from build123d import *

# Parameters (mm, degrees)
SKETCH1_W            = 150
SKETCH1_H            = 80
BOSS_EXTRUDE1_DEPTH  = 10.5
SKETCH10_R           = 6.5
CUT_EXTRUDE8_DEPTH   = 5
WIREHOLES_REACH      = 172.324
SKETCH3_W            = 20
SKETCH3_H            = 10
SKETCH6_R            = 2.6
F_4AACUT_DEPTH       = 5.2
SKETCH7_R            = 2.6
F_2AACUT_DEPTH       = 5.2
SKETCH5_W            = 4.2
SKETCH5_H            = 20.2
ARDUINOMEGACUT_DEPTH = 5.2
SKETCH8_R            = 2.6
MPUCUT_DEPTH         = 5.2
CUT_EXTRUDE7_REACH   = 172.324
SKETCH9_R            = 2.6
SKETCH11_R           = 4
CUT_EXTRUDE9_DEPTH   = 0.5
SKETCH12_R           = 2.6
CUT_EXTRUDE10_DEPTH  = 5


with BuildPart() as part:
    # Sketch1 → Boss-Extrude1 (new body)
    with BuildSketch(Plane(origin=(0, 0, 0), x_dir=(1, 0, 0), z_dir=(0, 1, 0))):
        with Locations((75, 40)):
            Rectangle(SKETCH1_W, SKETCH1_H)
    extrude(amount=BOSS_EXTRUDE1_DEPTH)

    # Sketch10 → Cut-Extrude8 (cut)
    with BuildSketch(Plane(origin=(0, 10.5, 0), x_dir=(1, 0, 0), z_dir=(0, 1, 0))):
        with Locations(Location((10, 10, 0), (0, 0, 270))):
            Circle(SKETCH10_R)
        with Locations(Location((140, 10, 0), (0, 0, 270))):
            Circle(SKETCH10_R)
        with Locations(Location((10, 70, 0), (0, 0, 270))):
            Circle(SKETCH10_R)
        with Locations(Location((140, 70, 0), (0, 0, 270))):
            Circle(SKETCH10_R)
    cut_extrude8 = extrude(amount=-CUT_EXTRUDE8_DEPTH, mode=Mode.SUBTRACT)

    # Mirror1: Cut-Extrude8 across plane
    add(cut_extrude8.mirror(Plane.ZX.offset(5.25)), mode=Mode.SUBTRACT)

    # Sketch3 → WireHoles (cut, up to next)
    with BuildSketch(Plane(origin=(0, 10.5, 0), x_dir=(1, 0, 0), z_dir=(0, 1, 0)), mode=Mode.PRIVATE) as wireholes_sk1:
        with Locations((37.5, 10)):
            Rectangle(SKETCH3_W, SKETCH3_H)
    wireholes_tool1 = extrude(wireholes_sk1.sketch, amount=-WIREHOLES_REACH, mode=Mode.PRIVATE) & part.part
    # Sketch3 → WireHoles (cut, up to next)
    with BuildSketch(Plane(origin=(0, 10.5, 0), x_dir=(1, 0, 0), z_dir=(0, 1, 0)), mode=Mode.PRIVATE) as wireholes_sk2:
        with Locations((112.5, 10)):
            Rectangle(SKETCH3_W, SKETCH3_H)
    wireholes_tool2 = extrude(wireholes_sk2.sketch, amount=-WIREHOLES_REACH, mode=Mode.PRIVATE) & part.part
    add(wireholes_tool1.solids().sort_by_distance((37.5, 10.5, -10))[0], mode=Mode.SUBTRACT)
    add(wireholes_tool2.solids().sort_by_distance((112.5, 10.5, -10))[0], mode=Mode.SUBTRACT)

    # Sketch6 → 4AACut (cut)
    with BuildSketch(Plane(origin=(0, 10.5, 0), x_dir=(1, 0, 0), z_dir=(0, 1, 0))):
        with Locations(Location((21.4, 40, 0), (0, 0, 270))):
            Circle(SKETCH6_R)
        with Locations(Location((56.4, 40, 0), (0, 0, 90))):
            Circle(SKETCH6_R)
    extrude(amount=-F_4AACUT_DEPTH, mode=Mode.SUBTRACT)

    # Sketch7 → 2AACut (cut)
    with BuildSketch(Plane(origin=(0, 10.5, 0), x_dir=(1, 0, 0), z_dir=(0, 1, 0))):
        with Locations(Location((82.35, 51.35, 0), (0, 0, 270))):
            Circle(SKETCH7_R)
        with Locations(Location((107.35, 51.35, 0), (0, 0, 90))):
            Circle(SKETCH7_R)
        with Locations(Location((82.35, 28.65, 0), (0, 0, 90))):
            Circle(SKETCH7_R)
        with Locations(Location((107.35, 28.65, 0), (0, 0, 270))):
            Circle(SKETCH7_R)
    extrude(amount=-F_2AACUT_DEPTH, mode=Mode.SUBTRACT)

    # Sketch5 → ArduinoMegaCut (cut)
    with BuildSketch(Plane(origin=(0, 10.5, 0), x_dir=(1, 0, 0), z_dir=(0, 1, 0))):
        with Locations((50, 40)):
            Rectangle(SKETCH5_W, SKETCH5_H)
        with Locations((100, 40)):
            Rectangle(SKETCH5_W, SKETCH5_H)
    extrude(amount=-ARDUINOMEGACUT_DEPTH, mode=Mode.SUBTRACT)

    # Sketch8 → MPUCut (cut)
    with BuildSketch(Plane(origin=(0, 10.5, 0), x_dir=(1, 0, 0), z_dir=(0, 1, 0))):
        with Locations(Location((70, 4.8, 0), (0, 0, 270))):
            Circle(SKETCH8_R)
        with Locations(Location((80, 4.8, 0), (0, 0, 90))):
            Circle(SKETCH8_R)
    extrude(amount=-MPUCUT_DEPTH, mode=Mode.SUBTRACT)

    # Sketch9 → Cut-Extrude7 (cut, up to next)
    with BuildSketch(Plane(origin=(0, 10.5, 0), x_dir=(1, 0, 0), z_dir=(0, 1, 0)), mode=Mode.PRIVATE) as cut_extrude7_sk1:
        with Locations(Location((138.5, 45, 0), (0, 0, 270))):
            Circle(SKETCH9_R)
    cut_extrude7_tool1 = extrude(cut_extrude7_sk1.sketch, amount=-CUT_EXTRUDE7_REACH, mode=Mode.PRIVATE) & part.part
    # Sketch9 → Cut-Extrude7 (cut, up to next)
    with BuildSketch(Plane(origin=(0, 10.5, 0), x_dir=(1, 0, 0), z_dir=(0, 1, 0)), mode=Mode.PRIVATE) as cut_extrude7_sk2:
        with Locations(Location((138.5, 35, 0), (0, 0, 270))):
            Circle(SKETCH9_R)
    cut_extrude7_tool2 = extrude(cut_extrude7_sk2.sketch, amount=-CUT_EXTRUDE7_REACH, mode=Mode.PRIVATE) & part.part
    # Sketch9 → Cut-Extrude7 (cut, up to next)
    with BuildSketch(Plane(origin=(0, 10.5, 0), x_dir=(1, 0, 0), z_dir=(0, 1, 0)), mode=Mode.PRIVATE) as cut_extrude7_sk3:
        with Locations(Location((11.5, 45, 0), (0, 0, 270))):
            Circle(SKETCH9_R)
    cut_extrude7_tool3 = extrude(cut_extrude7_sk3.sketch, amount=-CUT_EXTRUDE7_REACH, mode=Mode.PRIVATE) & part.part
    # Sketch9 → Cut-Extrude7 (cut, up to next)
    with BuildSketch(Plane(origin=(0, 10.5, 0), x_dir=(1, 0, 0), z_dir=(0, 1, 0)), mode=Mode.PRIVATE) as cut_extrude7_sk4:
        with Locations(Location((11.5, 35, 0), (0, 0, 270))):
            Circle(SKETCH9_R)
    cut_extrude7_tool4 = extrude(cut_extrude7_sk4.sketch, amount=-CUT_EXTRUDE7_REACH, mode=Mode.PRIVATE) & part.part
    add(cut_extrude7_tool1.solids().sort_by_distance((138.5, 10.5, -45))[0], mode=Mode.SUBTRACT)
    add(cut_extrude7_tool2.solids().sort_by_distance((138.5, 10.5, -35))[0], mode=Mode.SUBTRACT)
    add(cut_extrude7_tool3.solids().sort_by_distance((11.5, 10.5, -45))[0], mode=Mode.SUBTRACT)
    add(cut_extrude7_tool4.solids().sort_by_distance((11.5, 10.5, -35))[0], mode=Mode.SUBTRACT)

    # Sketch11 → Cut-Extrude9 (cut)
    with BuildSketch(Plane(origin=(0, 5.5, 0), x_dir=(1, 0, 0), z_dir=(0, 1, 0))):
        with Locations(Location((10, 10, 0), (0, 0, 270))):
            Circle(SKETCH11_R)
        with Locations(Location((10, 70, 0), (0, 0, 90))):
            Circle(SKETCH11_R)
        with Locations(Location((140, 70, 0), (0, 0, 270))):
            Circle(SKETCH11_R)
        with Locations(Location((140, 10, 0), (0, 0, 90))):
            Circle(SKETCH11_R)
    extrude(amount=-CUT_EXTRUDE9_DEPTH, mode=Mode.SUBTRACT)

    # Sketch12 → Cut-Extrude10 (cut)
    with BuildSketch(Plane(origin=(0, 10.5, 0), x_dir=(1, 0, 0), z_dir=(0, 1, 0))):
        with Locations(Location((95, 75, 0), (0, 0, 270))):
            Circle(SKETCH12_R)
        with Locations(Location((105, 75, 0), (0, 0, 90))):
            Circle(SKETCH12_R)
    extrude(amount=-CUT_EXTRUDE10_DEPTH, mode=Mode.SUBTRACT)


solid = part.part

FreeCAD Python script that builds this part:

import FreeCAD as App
import Part
import Sketcher

doc = App.newDocument("Part")
body = doc.addObject("PartDesign::Body", "Body")

# Sketch on XZ plane
sketch1 = body.newObject("Sketcher::SketchObject", "Sketch")
sketch1.AttachmentSupport = (doc.getObject("XZ_Plane"), [""])
sketch1.MapMode = "FlatFace"
sketch1.addGeometry(Part.LineSegment(App.Vector(0, -80, 0), App.Vector(0, 0, 0)), False)
sketch1.addGeometry(Part.LineSegment(App.Vector(0, 0, 0), App.Vector(150, 0, 0)), False)
sketch1.addGeometry(Part.LineSegment(App.Vector(150, 0, 0), App.Vector(150, -80, 0)), False)
sketch1.addGeometry(Part.LineSegment(App.Vector(150, -80, 0), App.Vector(0, -80, 0)), False)
sketch1.addConstraint(Sketcher.Constraint("Coincident", 0, 2, 1, 1))
sketch1.addConstraint(Sketcher.Constraint("Coincident", 1, 2, 2, 1))
sketch1.addConstraint(Sketcher.Constraint("Coincident", 2, 2, 3, 1))
sketch1.addConstraint(Sketcher.Constraint("Coincident", 3, 2, 0, 1))
sketch1.addConstraint(Sketcher.Constraint("Vertical", 0))
sketch1.addConstraint(Sketcher.Constraint("Horizontal", 1))
sketch1.addConstraint(Sketcher.Constraint("Vertical", 2))
sketch1.addConstraint(Sketcher.Constraint("Horizontal", 3))
sketch1.addConstraint(Sketcher.Constraint("Coincident", 0, 2, -1, 1))
sketch1.addConstraint(Sketcher.Constraint("DistanceX", 1, 1, 1, 2, 150.0))
sketch1.addConstraint(Sketcher.Constraint("DistanceY", 0, 1, 0, 2, 80.0))
pad1 = body.newObject("PartDesign::Pad", "Pad")
pad1.Profile = sketch1
pad1.Length = 10.5
pad1.Reversed = True

# Sketch on XZ plane
sketch2 = body.newObject("Sketcher::SketchObject", "Sketch001")
sketch2.AttachmentSupport = (doc.getObject("XZ_Plane"), [""])
sketch2.MapMode = "FlatFace"
sketch2.AttachmentOffset = App.Placement(App.Vector(0, 0, -10.5), App.Rotation())
sketch2.addGeometry(Part.Circle(App.Vector(10, -10, 0), App.Vector(0, 0, 1), 6.5), False)
sketch2.addGeometry(Part.Circle(App.Vector(140, -10, 0), App.Vector(0, 0, 1), 6.5), False)
sketch2.addGeometry(Part.Circle(App.Vector(10, -70, 0), App.Vector(0, 0, 1), 6.5), False)
sketch2.addGeometry(Part.Circle(App.Vector(140, -70, 0), App.Vector(0, 0, 1), 6.5), False)
sketch2.addConstraint(Sketcher.Constraint("Equal", 0, 1))
sketch2.addConstraint(Sketcher.Constraint("Equal", 1, 2))
sketch2.addConstraint(Sketcher.Constraint("Equal", 2, 3))
sketch2.addConstraint(Sketcher.Constraint("Horizontal", 0, 3, 1, 3))
sketch2.addConstraint(Sketcher.Constraint("Horizontal", 2, 3, 3, 3))
sketch2.addConstraint(Sketcher.Constraint("Vertical", 0, 3, 2, 3))
sketch2.addConstraint(Sketcher.Constraint("Vertical", 1, 3, 3, 3))
sketch2.addConstraint(Sketcher.Constraint("Diameter", 0, 13.0))
sketch2.addConstraint(Sketcher.Constraint("DistanceX", -1, 1, 0, 3, 10.0))
sketch2.addConstraint(Sketcher.Constraint("DistanceY", 0, 3, -1, 1, 10.0))
sketch2.addConstraint(Sketcher.Constraint("DistanceX", -1, 1, 1, 3, 140.0))
sketch2.addConstraint(Sketcher.Constraint("DistanceY", 2, 3, -1, 1, 70.0))
pocket1 = body.newObject("PartDesign::Pocket", "Pocket")
pocket1.Profile = sketch2
pocket1.Length = 5
pocket1.Reversed = True
doc.recompute()

datumplane = body.newObject("PartDesign::Plane", "DatumPlane")
datumplane.AttachmentSupport = (doc.getObject("XZ_Plane"), [""])
datumplane.MapMode = "FlatFace"
datumplane.AttachmentOffset = App.Placement(App.Vector(0, 0, -5.25), App.Rotation())
mirrored = body.newObject("PartDesign::Mirrored", "Mirrored")
mirrored.Originals = [pocket1]
mirrored.MirrorPlane = (datumplane, [""])
body.Tip = mirrored

# Sketch on XZ plane
sketch3 = body.newObject("Sketcher::SketchObject", "Sketch002")
sketch3.AttachmentSupport = (doc.getObject("XZ_Plane"), [""])
sketch3.MapMode = "FlatFace"
sketch3.AttachmentOffset = App.Placement(App.Vector(0, 0, -10.5), App.Rotation())
sketch3.addGeometry(Part.LineSegment(App.Vector(27.5, -15, 0), App.Vector(27.5, -5, 0)), False)
sketch3.addGeometry(Part.LineSegment(App.Vector(27.5, -5, 0), App.Vector(47.5, -5, 0)), False)
sketch3.addGeometry(Part.LineSegment(App.Vector(47.5, -5, 0), App.Vector(47.5, -15, 0)), False)
sketch3.addGeometry(Part.LineSegment(App.Vector(47.5, -15, 0), App.Vector(27.5, -15, 0)), False)
sketch3.addConstraint(Sketcher.Constraint("Coincident", 0, 2, 1, 1))
sketch3.addConstraint(Sketcher.Constraint("Coincident", 1, 2, 2, 1))
sketch3.addConstraint(Sketcher.Constraint("Coincident", 2, 2, 3, 1))
sketch3.addConstraint(Sketcher.Constraint("Coincident", 3, 2, 0, 1))
sketch3.addConstraint(Sketcher.Constraint("Vertical", 0))
sketch3.addConstraint(Sketcher.Constraint("Horizontal", 1))
sketch3.addConstraint(Sketcher.Constraint("Vertical", 2))
sketch3.addConstraint(Sketcher.Constraint("Horizontal", 3))
sketch3.addConstraint(Sketcher.Constraint("DistanceX", 1, 1, 1, 2, 20.0))
sketch3.addConstraint(Sketcher.Constraint("DistanceY", 0, 1, 0, 2, 10.0))
sketch3.addConstraint(Sketcher.Constraint("DistanceY", 0, 2, -1, 1, 5.0))
sketch3.addConstraint(Sketcher.Constraint("DistanceX", -1, 1, 0, 2, 27.5))
pocket2 = body.newObject("PartDesign::Pocket", "Pocket001")
pocket2.Profile = sketch3
pocket2.Type = "UpToFirst"
pocket2.Reversed = True

# Sketch on XZ plane
sketch4 = body.newObject("Sketcher::SketchObject", "Sketch003")
sketch4.AttachmentSupport = (doc.getObject("XZ_Plane"), [""])
sketch4.MapMode = "FlatFace"
sketch4.AttachmentOffset = App.Placement(App.Vector(0, 0, -10.5), App.Rotation())
sketch4.addGeometry(Part.LineSegment(App.Vector(102.5, -15, 0), App.Vector(102.5, -5, 0)), False)
sketch4.addGeometry(Part.LineSegment(App.Vector(102.5, -5, 0), App.Vector(122.5, -5, 0)), False)
sketch4.addGeometry(Part.LineSegment(App.Vector(122.5, -5, 0), App.Vector(122.5, -15, 0)), False)
sketch4.addGeometry(Part.LineSegment(App.Vector(122.5, -15, 0), App.Vector(102.5, -15, 0)), False)
sketch4.addConstraint(Sketcher.Constraint("Coincident", 0, 2, 1, 1))
sketch4.addConstraint(Sketcher.Constraint("Coincident", 1, 2, 2, 1))
sketch4.addConstraint(Sketcher.Constraint("Coincident", 2, 2, 3, 1))
sketch4.addConstraint(Sketcher.Constraint("Coincident", 3, 2, 0, 1))
sketch4.addConstraint(Sketcher.Constraint("Vertical", 0))
sketch4.addConstraint(Sketcher.Constraint("Horizontal", 1))
sketch4.addConstraint(Sketcher.Constraint("Vertical", 2))
sketch4.addConstraint(Sketcher.Constraint("Horizontal", 3))
sketch4.addConstraint(Sketcher.Constraint("DistanceX", 1, 1, 1, 2, 20.0))
sketch4.addConstraint(Sketcher.Constraint("DistanceY", 0, 1, 0, 2, 10.0))
sketch4.addConstraint(Sketcher.Constraint("DistanceY", 0, 2, -1, 1, 5.0))
sketch4.addConstraint(Sketcher.Constraint("DistanceX", -1, 1, 0, 2, 102.5))
pocket3 = body.newObject("PartDesign::Pocket", "Pocket002")
pocket3.Profile = sketch4
pocket3.Type = "UpToFirst"
pocket3.Reversed = True

# Sketch on XZ plane
sketch5 = body.newObject("Sketcher::SketchObject", "Sketch004")
sketch5.AttachmentSupport = (doc.getObject("XZ_Plane"), [""])
sketch5.MapMode = "FlatFace"
sketch5.AttachmentOffset = App.Placement(App.Vector(0, 0, -10.5), App.Rotation())
sketch5.addGeometry(Part.Circle(App.Vector(21.4, -40, 0), App.Vector(0, 0, 1), 2.6), False)
sketch5.addGeometry(Part.Circle(App.Vector(56.4, -40, 0), App.Vector(0, 0, 1), 2.6), False)
sketch5.addConstraint(Sketcher.Constraint("Equal", 0, 1))
sketch5.addConstraint(Sketcher.Constraint("Horizontal", 0, 3, 1, 3))
sketch5.addConstraint(Sketcher.Constraint("Diameter", 0, 5.2))
sketch5.addConstraint(Sketcher.Constraint("DistanceY", 0, 3, -1, 1, 40.0))
sketch5.addConstraint(Sketcher.Constraint("DistanceX", 0, 3, 1, 3, 35.0))
sketch5.addConstraint(Sketcher.Constraint("DistanceX", -1, 1, 0, 3, 21.4))
pocket4 = body.newObject("PartDesign::Pocket", "Pocket003")
pocket4.Profile = sketch5
pocket4.Length = 5.2
pocket4.Reversed = True

# Sketch on XZ plane
sketch6 = body.newObject("Sketcher::SketchObject", "Sketch005")
sketch6.AttachmentSupport = (doc.getObject("XZ_Plane"), [""])
sketch6.MapMode = "FlatFace"
sketch6.AttachmentOffset = App.Placement(App.Vector(0, 0, -10.5), App.Rotation())
sketch6.addGeometry(Part.Circle(App.Vector(82.35, -51.35, 0), App.Vector(0, 0, 1), 2.6), False)
sketch6.addGeometry(Part.Circle(App.Vector(107.35, -51.35, 0), App.Vector(0, 0, 1), 2.6), False)
sketch6.addGeometry(Part.Circle(App.Vector(82.35, -28.65, 0), App.Vector(0, 0, 1), 2.6), False)
sketch6.addGeometry(Part.Circle(App.Vector(107.35, -28.65, 0), App.Vector(0, 0, 1), 2.6), False)
sketch6.addConstraint(Sketcher.Constraint("Equal", 0, 1))
sketch6.addConstraint(Sketcher.Constraint("Equal", 1, 2))
sketch6.addConstraint(Sketcher.Constraint("Equal", 2, 3))
sketch6.addConstraint(Sketcher.Constraint("Horizontal", 0, 3, 1, 3))
sketch6.addConstraint(Sketcher.Constraint("Horizontal", 2, 3, 3, 3))
sketch6.addConstraint(Sketcher.Constraint("Vertical", 0, 3, 2, 3))
sketch6.addConstraint(Sketcher.Constraint("Vertical", 1, 3, 3, 3))
sketch6.addConstraint(Sketcher.Constraint("Diameter", 0, 5.2))
sketch6.addConstraint(Sketcher.Constraint("DistanceX", 0, 3, 1, 3, 25.0))
sketch6.addConstraint(Sketcher.Constraint("DistanceY", 0, 3, 2, 3, 22.7))
sketch6.addConstraint(Sketcher.Constraint("DistanceX", -1, 1, 0, 3, 82.35))
sketch6.addConstraint(Sketcher.Constraint("DistanceY", 0, 3, -1, 1, 51.35))
pocket5 = body.newObject("PartDesign::Pocket", "Pocket004")
pocket5.Profile = sketch6
pocket5.Length = 5.2
pocket5.Reversed = True

# Sketch on XZ plane
sketch7 = body.newObject("Sketcher::SketchObject", "Sketch006")
sketch7.AttachmentSupport = (doc.getObject("XZ_Plane"), [""])
sketch7.MapMode = "FlatFace"
sketch7.AttachmentOffset = App.Placement(App.Vector(0, 0, -10.5), App.Rotation())
sketch7.addGeometry(Part.LineSegment(App.Vector(47.9, -50.1, 0), App.Vector(47.9, -29.9, 0)), False)
sketch7.addGeometry(Part.LineSegment(App.Vector(47.9, -29.9, 0), App.Vector(52.1, -29.9, 0)), False)
sketch7.addGeometry(Part.LineSegment(App.Vector(52.1, -29.9, 0), App.Vector(52.1, -50.1, 0)), False)
sketch7.addGeometry(Part.LineSegment(App.Vector(52.1, -50.1, 0), App.Vector(47.9, -50.1, 0)), False)
sketch7.addGeometry(Part.LineSegment(App.Vector(97.9, -50.1, 0), App.Vector(97.9, -29.9, 0)), False)
sketch7.addGeometry(Part.LineSegment(App.Vector(97.9, -29.9, 0), App.Vector(102.1, -29.9, 0)), False)
sketch7.addGeometry(Part.LineSegment(App.Vector(102.1, -29.9, 0), App.Vector(102.1, -50.1, 0)), False)
sketch7.addGeometry(Part.LineSegment(App.Vector(102.1, -50.1, 0), App.Vector(97.9, -50.1, 0)), False)
sketch7.addConstraint(Sketcher.Constraint("Coincident", 0, 2, 1, 1))
sketch7.addConstraint(Sketcher.Constraint("Coincident", 1, 2, 2, 1))
sketch7.addConstraint(Sketcher.Constraint("Coincident", 2, 2, 3, 1))
sketch7.addConstraint(Sketcher.Constraint("Coincident", 3, 2, 0, 1))
sketch7.addConstraint(Sketcher.Constraint("Coincident", 4, 2, 5, 1))
sketch7.addConstraint(Sketcher.Constraint("Coincident", 5, 2, 6, 1))
sketch7.addConstraint(Sketcher.Constraint("Coincident", 6, 2, 7, 1))
sketch7.addConstraint(Sketcher.Constraint("Coincident", 7, 2, 4, 1))
sketch7.addConstraint(Sketcher.Constraint("Vertical", 0))
sketch7.addConstraint(Sketcher.Constraint("Horizontal", 1))
sketch7.addConstraint(Sketcher.Constraint("Vertical", 2))
sketch7.addConstraint(Sketcher.Constraint("Horizontal", 3))
sketch7.addConstraint(Sketcher.Constraint("Vertical", 4))
sketch7.addConstraint(Sketcher.Constraint("Horizontal", 5))
sketch7.addConstraint(Sketcher.Constraint("Vertical", 6))
sketch7.addConstraint(Sketcher.Constraint("Horizontal", 7))
sketch7.addConstraint(Sketcher.Constraint("Horizontal", 1, 2, 4, 2))
sketch7.addConstraint(Sketcher.Constraint("Horizontal", 3, 2, 6, 2))
sketch7.addConstraint(Sketcher.Constraint("Equal", 3, 5))
sketch7.addConstraint(Sketcher.Constraint("DistanceX", 1, 1, 1, 2, 4.2))
sketch7.addConstraint(Sketcher.Constraint("DistanceY", 0, 1, 0, 2, 20.2))
sketch7.addConstraint(Sketcher.Constraint("DistanceX", 0, 2, 4, 2, 50.0))
sketch7.addConstraint(Sketcher.Constraint("DistanceX", -1, 1, 0, 2, 47.9))
sketch7.addConstraint(Sketcher.Constraint("DistanceY", 0, 2, -1, 1, 29.9))
pocket6 = body.newObject("PartDesign::Pocket", "Pocket005")
pocket6.Profile = sketch7
pocket6.Length = 5.2
pocket6.Reversed = True

# Sketch on XZ plane
sketch8 = body.newObject("Sketcher::SketchObject", "Sketch007")
sketch8.AttachmentSupport = (doc.getObject("XZ_Plane"), [""])
sketch8.MapMode = "FlatFace"
sketch8.AttachmentOffset = App.Placement(App.Vector(0, 0, -10.5), App.Rotation())
sketch8.addGeometry(Part.Circle(App.Vector(70, -4.8, 0), App.Vector(0, 0, 1), 2.6), False)
sketch8.addGeometry(Part.Circle(App.Vector(80, -4.8, 0), App.Vector(0, 0, 1), 2.6), False)
sketch8.addConstraint(Sketcher.Constraint("Equal", 0, 1))
sketch8.addConstraint(Sketcher.Constraint("Horizontal", 0, 3, 1, 3))
sketch8.addConstraint(Sketcher.Constraint("Diameter", 0, 5.2))
sketch8.addConstraint(Sketcher.Constraint("DistanceX", -1, 1, 0, 3, 70.0))
sketch8.addConstraint(Sketcher.Constraint("DistanceX", -1, 1, 1, 3, 80.0))
sketch8.addConstraint(Sketcher.Constraint("DistanceY", 0, 3, -1, 1, 4.8))
pocket7 = body.newObject("PartDesign::Pocket", "Pocket006")
pocket7.Profile = sketch8
pocket7.Length = 5.2
pocket7.Reversed = True

# Sketch on XZ plane
sketch9 = body.newObject("Sketcher::SketchObject", "Sketch008")
sketch9.AttachmentSupport = (doc.getObject("XZ_Plane"), [""])
sketch9.MapMode = "FlatFace"
sketch9.AttachmentOffset = App.Placement(App.Vector(0, 0, -10.5), App.Rotation())
sketch9.addGeometry(Part.Circle(App.Vector(138.5, -45, 0), App.Vector(0, 0, 1), 2.6), False)
sketch9.addConstraint(Sketcher.Constraint("Diameter", 0, 5.2))
sketch9.addConstraint(Sketcher.Constraint("DistanceY", 0, 3, -1, 1, 45.0))
sketch9.addConstraint(Sketcher.Constraint("DistanceX", -1, 1, 0, 3, 138.5))
pocket8 = body.newObject("PartDesign::Pocket", "Pocket007")
pocket8.Profile = sketch9
pocket8.Type = "UpToFirst"
pocket8.Reversed = True

# Sketch on XZ plane
sketch10 = body.newObject("Sketcher::SketchObject", "Sketch009")
sketch10.AttachmentSupport = (doc.getObject("XZ_Plane"), [""])
sketch10.MapMode = "FlatFace"
sketch10.AttachmentOffset = App.Placement(App.Vector(0, 0, -10.5), App.Rotation())
sketch10.addGeometry(Part.Circle(App.Vector(138.5, -35, 0), App.Vector(0, 0, 1), 2.6), False)
sketch10.addConstraint(Sketcher.Constraint("Diameter", 0, 5.2))
sketch10.addConstraint(Sketcher.Constraint("DistanceY", 0, 3, -1, 1, 35.0))
sketch10.addConstraint(Sketcher.Constraint("DistanceX", -1, 1, 0, 3, 138.5))
pocket9 = body.newObject("PartDesign::Pocket", "Pocket008")
pocket9.Profile = sketch10
pocket9.Type = "UpToFirst"
pocket9.Reversed = True

# Sketch on XZ plane
sketch11 = body.newObject("Sketcher::SketchObject", "Sketch010")
sketch11.AttachmentSupport = (doc.getObject("XZ_Plane"), [""])
sketch11.MapMode = "FlatFace"
sketch11.AttachmentOffset = App.Placement(App.Vector(0, 0, -10.5), App.Rotation())
sketch11.addGeometry(Part.Circle(App.Vector(11.5, -45, 0), App.Vector(0, 0, 1), 2.6), False)
sketch11.addConstraint(Sketcher.Constraint("Diameter", 0, 5.2))
sketch11.addConstraint(Sketcher.Constraint("DistanceY", 0, 3, -1, 1, 45.0))
sketch11.addConstraint(Sketcher.Constraint("DistanceX", -1, 1, 0, 3, 11.5))
pocket10 = body.newObject("PartDesign::Pocket", "Pocket009")
pocket10.Profile = sketch11
pocket10.Type = "UpToFirst"
pocket10.Reversed = True

# Sketch on XZ plane
sketch12 = body.newObject("Sketcher::SketchObject", "Sketch011")
sketch12.AttachmentSupport = (doc.getObject("XZ_Plane"), [""])
sketch12.MapMode = "FlatFace"
sketch12.AttachmentOffset = App.Placement(App.Vector(0, 0, -10.5), App.Rotation())
sketch12.addGeometry(Part.Circle(App.Vector(11.5, -35, 0), App.Vector(0, 0, 1), 2.6), False)
sketch12.addConstraint(Sketcher.Constraint("Diameter", 0, 5.2))
sketch12.addConstraint(Sketcher.Constraint("DistanceY", 0, 3, -1, 1, 35.0))
sketch12.addConstraint(Sketcher.Constraint("DistanceX", -1, 1, 0, 3, 11.5))
pocket11 = body.newObject("PartDesign::Pocket", "Pocket010")
pocket11.Profile = sketch12
pocket11.Type = "UpToFirst"
pocket11.Reversed = True

# Sketch on XZ plane
sketch13 = body.newObject("Sketcher::SketchObject", "Sketch012")
sketch13.AttachmentSupport = (doc.getObject("XZ_Plane"), [""])
sketch13.MapMode = "FlatFace"
sketch13.AttachmentOffset = App.Placement(App.Vector(0, 0, -5.5), App.Rotation())
sketch13.addGeometry(Part.Circle(App.Vector(10, -10, 0), App.Vector(0, 0, 1), 4), False)
sketch13.addGeometry(Part.Circle(App.Vector(10, -70, 0), App.Vector(0, 0, 1), 4), False)
sketch13.addGeometry(Part.Circle(App.Vector(140, -70, 0), App.Vector(0, 0, 1), 4), False)
sketch13.addGeometry(Part.Circle(App.Vector(140, -10, 0), App.Vector(0, 0, 1), 4), False)
sketch13.addConstraint(Sketcher.Constraint("Equal", 0, 1))
sketch13.addConstraint(Sketcher.Constraint("Equal", 1, 2))
sketch13.addConstraint(Sketcher.Constraint("Equal", 2, 3))
sketch13.addConstraint(Sketcher.Constraint("Horizontal", 1, 3, 2, 3))
sketch13.addConstraint(Sketcher.Constraint("Horizontal", 0, 3, 3, 3))
sketch13.addConstraint(Sketcher.Constraint("Vertical", 0, 3, 1, 3))
sketch13.addConstraint(Sketcher.Constraint("Vertical", 2, 3, 3, 3))
sketch13.addConstraint(Sketcher.Constraint("Diameter", 0, 8.0))
sketch13.addConstraint(Sketcher.Constraint("DistanceX", -1, 1, 0, 3, 10.0))
sketch13.addConstraint(Sketcher.Constraint("DistanceY", 0, 3, -1, 1, 10.0))
sketch13.addConstraint(Sketcher.Constraint("DistanceY", 1, 3, -1, 1, 70.0))
sketch13.addConstraint(Sketcher.Constraint("DistanceX", -1, 1, 2, 3, 140.0))
pocket12 = body.newObject("PartDesign::Pocket", "Pocket011")
pocket12.Profile = sketch13
pocket12.Length = 0.5
pocket12.Reversed = True

# Sketch on XZ plane
sketch14 = body.newObject("Sketcher::SketchObject", "Sketch013")
sketch14.AttachmentSupport = (doc.getObject("XZ_Plane"), [""])
sketch14.MapMode = "FlatFace"
sketch14.AttachmentOffset = App.Placement(App.Vector(0, 0, -10.5), App.Rotation())
sketch14.addGeometry(Part.Circle(App.Vector(95, -75, 0), App.Vector(0, 0, 1), 2.6), False)
sketch14.addGeometry(Part.Circle(App.Vector(105, -75, 0), App.Vector(0, 0, 1), 2.6), False)
sketch14.addConstraint(Sketcher.Constraint("Equal", 0, 1))
sketch14.addConstraint(Sketcher.Constraint("Horizontal", 0, 3, 1, 3))
sketch14.addConstraint(Sketcher.Constraint("Diameter", 0, 5.2))
sketch14.addConstraint(Sketcher.Constraint("DistanceX", -1, 1, 0, 3, 95.0))
sketch14.addConstraint(Sketcher.Constraint("DistanceY", 0, 3, -1, 1, 75.0))
sketch14.addConstraint(Sketcher.Constraint("DistanceX", -1, 1, 1, 3, 105.0))
pocket13 = body.newObject("PartDesign::Pocket", "Pocket012")
pocket13.Profile = sketch14
pocket13.Length = 5
pocket13.Reversed = True

doc.recompute()
